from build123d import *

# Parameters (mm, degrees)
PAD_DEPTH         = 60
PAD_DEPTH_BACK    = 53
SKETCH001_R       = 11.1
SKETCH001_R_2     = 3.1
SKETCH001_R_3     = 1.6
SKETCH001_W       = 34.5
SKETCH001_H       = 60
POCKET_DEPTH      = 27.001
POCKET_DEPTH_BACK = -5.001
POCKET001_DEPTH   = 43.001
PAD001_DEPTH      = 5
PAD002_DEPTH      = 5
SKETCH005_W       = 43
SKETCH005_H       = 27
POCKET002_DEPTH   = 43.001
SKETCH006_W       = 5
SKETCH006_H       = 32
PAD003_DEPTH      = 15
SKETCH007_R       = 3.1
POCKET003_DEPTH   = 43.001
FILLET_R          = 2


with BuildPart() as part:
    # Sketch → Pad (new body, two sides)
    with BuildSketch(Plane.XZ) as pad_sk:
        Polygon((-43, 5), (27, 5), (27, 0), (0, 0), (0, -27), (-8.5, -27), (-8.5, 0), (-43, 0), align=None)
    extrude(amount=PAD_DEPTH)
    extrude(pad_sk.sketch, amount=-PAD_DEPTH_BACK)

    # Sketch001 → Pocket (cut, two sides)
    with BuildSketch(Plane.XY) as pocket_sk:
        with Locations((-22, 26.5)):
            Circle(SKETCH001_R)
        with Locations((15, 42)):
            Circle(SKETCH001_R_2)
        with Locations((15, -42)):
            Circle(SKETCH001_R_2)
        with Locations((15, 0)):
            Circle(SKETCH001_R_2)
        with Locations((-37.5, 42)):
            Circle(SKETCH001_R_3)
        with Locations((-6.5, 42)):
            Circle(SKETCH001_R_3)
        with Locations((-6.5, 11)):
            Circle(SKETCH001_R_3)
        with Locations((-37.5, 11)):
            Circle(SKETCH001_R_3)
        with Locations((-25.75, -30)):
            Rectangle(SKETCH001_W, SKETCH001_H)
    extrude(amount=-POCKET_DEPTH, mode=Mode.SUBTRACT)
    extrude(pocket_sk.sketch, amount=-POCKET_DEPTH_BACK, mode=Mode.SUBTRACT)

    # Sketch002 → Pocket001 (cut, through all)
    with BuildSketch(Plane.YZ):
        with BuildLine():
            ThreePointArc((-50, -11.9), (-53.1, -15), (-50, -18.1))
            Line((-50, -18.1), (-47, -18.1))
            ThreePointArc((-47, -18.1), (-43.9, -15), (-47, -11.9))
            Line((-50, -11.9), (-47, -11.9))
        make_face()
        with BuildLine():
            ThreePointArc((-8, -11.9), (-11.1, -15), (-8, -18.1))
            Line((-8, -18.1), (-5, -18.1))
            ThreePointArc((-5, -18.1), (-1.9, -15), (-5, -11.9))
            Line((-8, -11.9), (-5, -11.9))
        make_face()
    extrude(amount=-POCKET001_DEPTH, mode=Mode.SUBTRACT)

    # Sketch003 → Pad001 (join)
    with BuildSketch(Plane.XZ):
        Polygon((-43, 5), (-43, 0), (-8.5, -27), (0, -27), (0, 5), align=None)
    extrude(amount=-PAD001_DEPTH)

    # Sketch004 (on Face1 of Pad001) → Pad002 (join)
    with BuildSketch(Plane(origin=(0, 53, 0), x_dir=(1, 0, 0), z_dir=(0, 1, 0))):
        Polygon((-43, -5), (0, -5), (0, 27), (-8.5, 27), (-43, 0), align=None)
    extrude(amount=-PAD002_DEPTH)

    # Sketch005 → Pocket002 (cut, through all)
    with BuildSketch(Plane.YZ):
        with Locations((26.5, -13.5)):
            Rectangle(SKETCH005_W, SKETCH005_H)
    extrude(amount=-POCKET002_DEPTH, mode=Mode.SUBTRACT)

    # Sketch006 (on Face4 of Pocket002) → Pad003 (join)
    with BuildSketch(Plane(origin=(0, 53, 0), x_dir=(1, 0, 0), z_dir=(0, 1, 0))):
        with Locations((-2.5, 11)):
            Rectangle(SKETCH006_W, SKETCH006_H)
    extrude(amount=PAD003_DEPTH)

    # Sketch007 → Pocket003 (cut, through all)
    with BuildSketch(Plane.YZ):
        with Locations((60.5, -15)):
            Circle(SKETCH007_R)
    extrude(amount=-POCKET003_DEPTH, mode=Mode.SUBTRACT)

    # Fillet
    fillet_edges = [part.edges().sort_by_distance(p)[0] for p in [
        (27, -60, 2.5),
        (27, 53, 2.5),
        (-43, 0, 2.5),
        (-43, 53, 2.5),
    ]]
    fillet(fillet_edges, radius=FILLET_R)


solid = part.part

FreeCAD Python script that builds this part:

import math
import FreeCAD as App
import Part
import Sketcher
Q = App.Units.Quantity


def edges_at(feature, points):
    """Names of the edges that pass closest to the given points."""
    edges = feature.Shape.Edges
    near = lambda p: min(range(len(edges)), key=lambda i: edges[i].distToShape(Part.Vertex(*p))[0])
    return sorted({f"Edge{near(p) + 1}" for p in points})

doc = App.newDocument("Part")
params = doc.addObject("Spreadsheet::Sheet", "Params")
for row, (alias, value) in enumerate([
    ("sketch1_width", "70 mm"),
    ("sketch1_width2", "27 mm"),
    ("sketch1_height", "5 mm"),
    ("sketch1_width3", "34.5 mm"),
    ("pad1_length", "60 mm"),
    ("pad1_length2", "53 mm"),
    ("sketch2_diameter", "22.2 mm"),
    ("sketch2_diameter2", "6.2 mm"),
    ("sketch2_diameter3", "3.2 mm"),
    ("sketch2_height", "60 mm"),
    ("sketch2_width", "34.5 mm"),
    ("sketch3_radius", "3.1 mm"),
    ("sketch3_width", "3 mm"),
    ("sketch4_width", "43 mm"),
    ("sketch4_height", "5 mm"),
    ("sketch4_height2", "32 mm"),
    ("sketch4_width2", "8.5 mm"),
    ("pad2_length", "5 mm"),
    ("sketch5_width", "43 mm"),
    ("sketch5_height", "32 mm"),
    ("sketch5_height2", "5 mm"),
    ("sketch5_width2", "8.5 mm"),
    ("pad3_length", "5 mm"),
    ("sketch6_width", "43 mm"),
    ("sketch6_height", "27 mm"),
    ("sketch7_width", "5 mm"),
    ("sketch7_height", "32 mm"),
    ("pad4_length", "15 mm"),
    ("sketch8_diameter", "6.2 mm"),
    ("fillet_radius", "2 mm"),
], start=1):
    params.set(f"A{row}", alias)
    params.set(f"B{row}", "=" + value)
    params.setAlias(f"B{row}", alias)

body = doc.addObject("PartDesign::Body", "Body")

# Sketch on XZ plane
sketch1 = body.newObject("Sketcher::SketchObject", "Sketch")
sketch1.AttachmentSupport = (doc.getObject("XZ_Plane"), [""])
sketch1.MapMode = "FlatFace"
sketch1.addGeometry(Part.LineSegment(App.Vector(27, 5, 0), App.Vector(-43, 5, 0)), False)
sketch1.addGeometry(Part.LineSegment(App.Vector(-43, 5, 0), App.Vector(-43, 0, 0)), False)
sketch1.addGeometry(Part.LineSegment(App.Vector(-43, 0, 0), App.Vector(-8, 0, 0)), False)
sketch1.addGeometry(Part.LineSegment(App.Vector(-8, 0, 0), App.Vector(-8, -27, 0)), False)
sketch1.addGeometry(Part.LineSegment(App.Vector(-8, -27, 0), App.Vector(0, -27, 0)), False)
sketch1.addGeometry(Part.LineSegment(App.Vector(0, -27, 0), App.Vector(0, 0, 0)), False)
sketch1.addGeometry(Part.LineSegment(App.Vector(0, 0, 0), App.Vector(27, 0, 0)), False)
sketch1.addGeometry(Part.LineSegment(App.Vector(27, 0, 0), App.Vector(27, 5, 0)), False)
sketch1.addConstraint(Sketcher.Constraint("Coincident", 0, 2, 1, 1))
sketch1.addConstraint(Sketcher.Constraint("Coincident", 1, 2, 2, 1))
sketch1.addConstraint(Sketcher.Constraint("Coincident", 2, 2, 3, 1))
sketch1.addConstraint(Sketcher.Constraint("Coincident", 3, 2, 4, 1))
sketch1.addConstraint(Sketcher.Constraint("Coincident", 4, 2, 5, 1))
sketch1.addConstraint(Sketcher.Constraint("Coincident", 5, 2, 6, 1))
sketch1.addConstraint(Sketcher.Constraint("Coincident", 6, 2, 7, 1))
sketch1.addConstraint(Sketcher.Constraint("Coincident", 7, 2, 0, 1))
sketch1.addConstraint(Sketcher.Constraint("Horizontal", 0))
sketch1.addConstraint(Sketcher.Constraint("Vertical", 1))
sketch1.addConstraint(Sketcher.Constraint("Horizontal", 2))
sketch1.addConstraint(Sketcher.Constraint("Vertical", 3))
sketch1.addConstraint(Sketcher.Constraint("Horizontal", 4))
sketch1.addConstraint(Sketcher.Constraint("Vertical", 5))
sketch1.addConstraint(Sketcher.Constraint("Horizontal", 6))
sketch1.addConstraint(Sketcher.Constraint("Vertical", 7))
sketch1.addConstraint(Sketcher.Constraint("Coincident", 5, 2, -1, 1))
sketch1.addConstraint(Sketcher.Constraint("PointOnObject", 1, 2, -1))
sketch1.addConstraint(Sketcher.Constraint("Equal", 6, 3))
sketch1.addConstraint(Sketcher.Constraint("DistanceX", 0, 2, 0, 1, Q("70 mm")))
sketch1.addConstraint(Sketcher.Constraint("DistanceX", 6, 1, 6, 2, Q("27 mm")))
sketch1.addConstraint(Sketcher.Constraint("DistanceY", 1, 2, 1, 1, Q("5 mm")))
sketch1.addConstraint(Sketcher.Constraint("DistanceX", 2, 1, 2, 2, Q("34.5 mm")))
sketch1.setExpression("Constraints[19]", "Params.sketch1_width")
sketch1.setExpression("Constraints[20]", "Params.sketch1_width2")
sketch1.setExpression("Constraints[21]", "Params.sketch1_height")
sketch1.setExpression("Constraints[22]", "Params.sketch1_width3")
pad1 = body.newObject("PartDesign::Pad", "Pad")
pad1.Profile = sketch1
pad1.Type = "TwoLengths"
pad1.setExpression("Length", "Params.pad1_length")
pad1.setExpression("Length2", "Params.pad1_length2")

# Sketch on XY plane
sketch2 = body.newObject("Sketcher::SketchObject", "Sketch001")
sketch2.AttachmentSupport = (doc.getObject("XY_Plane"), [""])
sketch2.MapMode = "FlatFace"
sketch2.addGeometry(Part.Circle(App.Vector(-22, 26.5, 0), App.Vector(0, 0, 1), 11.1), False)
sketch2.addGeometry(Part.Circle(App.Vector(15, 42, 0), App.Vector(0, 0, 1), 3.1), False)
sketch2.addGeometry(Part.Circle(App.Vector(15, -42, 0), App.Vector(0, 0, 1), 3.1), False)
sketch2.addGeometry(Part.Circle(App.Vector(15, 0, 0), App.Vector(0, 0, 1), 3.1), False)
sketch2.addGeometry(Part.Circle(App.Vector(-37.5, 42, 0), App.Vector(0, 0, 1), 1.6), False)
sketch2.addGeometry(Part.Circle(App.Vector(-6.5, 42, 0), App.Vector(0, 0, 1), 1.6), False)
sketch2.addGeometry(Part.Circle(App.Vector(-6.5, 11, 0), App.Vector(0, 0, 1), 1.6), False)
sketch2.addGeometry(Part.Circle(App.Vector(-37.5, 11, 0), App.Vector(0, 0, 1), 1.6), False)
sketch2.addGeometry(Part.LineSegment(App.Vector(-43, 0, 0), App.Vector(-43, -60, 0)), False)
sketch2.addGeometry(Part.LineSegment(App.Vector(-43, -60, 0), App.Vector(-8.5, -60, 0)), False)
sketch2.addGeometry(Part.LineSegment(App.Vector(-8.5, -60, 0), App.Vector(-8.5, 0, 0)), False)
sketch2.addGeometry(Part.LineSegment(App.Vector(-8.5, 0, 0), App.Vector(-43, 0, 0)), False)
sketch2.addConstraint(Sketcher.Constraint("Coincident", 8, 2, 9, 1))
sketch2.addConstraint(Sketcher.Constraint("Coincident", 9, 2, 10, 1))
sketch2.addConstraint(Sketcher.Constraint("Coincident", 10, 2, 11, 1))
sketch2.addConstraint(Sketcher.Constraint("Coincident", 11, 2, 8, 1))
sketch2.addConstraint(Sketcher.Constraint("Vertical", 8))
sketch2.addConstraint(Sketcher.Constraint("Horizontal", 9))
sketch2.addConstraint(Sketcher.Constraint("Vertical", 10))
sketch2.addConstraint(Sketcher.Constraint("Horizontal", 11))
sketch2.addConstraint(Sketcher.Constraint("Equal", 1, 2))
sketch2.addConstraint(Sketcher.Constraint("Equal", 2, 3))
sketch2.addConstraint(Sketcher.Constraint("Equal", 4, 5))
sketch2.addConstraint(Sketcher.Constraint("Equal", 5, 6))
sketch2.addConstraint(Sketcher.Constraint("Equal", 6, 7))
sketch2.addConstraint(Sketcher.Constraint("Symmetric", 1, 3, 2, 3, -1))
sketch2.addConstraint(Sketcher.Constraint("PointOnObject", 3, 3, -1))
sketch2.addConstraint(Sketcher.Constraint("PointOnObject", 10, 2, -1))
sketch2.addConstraint(Sketcher.Constraint("Horizontal", 1, 3, 4, 3))
sketch2.addConstraint(Sketcher.Constraint("Horizontal", 4, 3, 5, 3))
sketch2.addConstraint(Sketcher.Constraint("Horizontal", 6, 3, 7, 3))
sketch2.addConstraint(Sketcher.Constraint("Vertical", 2, 3, 3, 3))
sketch2.addConstraint(Sketcher.Constraint("Vertical", 5, 3, 6, 3))
sketch2.addConstraint(Sketcher.Constraint("Vertical", 4, 3, 7, 3))
sketch2.addConstraint(Sketcher.Constraint("Diameter", 0, Q("22.2 mm")))
sketch2.addConstraint(Sketcher.Constraint("Diameter", 1, Q("6.2 mm")))
sketch2.addConstraint(Sketcher.Constraint("Diameter", 4, Q("3.2 mm")))
sketch2.addConstraint(Sketcher.Constraint("DistanceY", 8, 2, 8, 1, Q("60 mm")))
sketch2.addConstraint(Sketcher.Constraint("DistanceX", 9, 1, 9, 2, Q("34.5 mm")))
sketch2.addConstraint(Sketcher.Constraint("DistanceX", 0, 3, -1, 1, Q("22 mm")))
sketch2.addConstraint(Sketcher.Constraint("DistanceX", -1, 1, 1, 3, Q("15 mm")))
sketch2.addConstraint(Sketcher.Constraint("DistanceY", -1, 1, 1, 3, Q("42 mm")))
sketch2.addConstraint(Sketcher.Constraint("DistanceY", -1, 1, 6, 3, Q("11 mm")))
sketch2.addConstraint(Sketcher.Constraint("DistanceX", 8, 2, -1, 1, Q("43 mm")))
sketch2.addConstraint(Sketcher.Constraint("DistanceX", 4, 3, 5, 3, Q("31 mm")))
sketch2.addConstraint(Sketcher.Constraint("DistanceX", 9, 2, 6, 3, Q("2 mm")))
sketch2.addConstraint(Sketcher.Constraint("DistanceY", -1, 1, 0, 3, Q("26.5 mm")))
sketch2.setExpression("Constraints[22]", "Params.sketch2_diameter")
sketch2.setExpression("Constraints[23]", "Params.sketch2_diameter2")
sketch2.setExpression("Constraints[24]", "Params.sketch2_diameter3")
sketch2.setExpression("Constraints[25]", "Params.sketch2_height")
sketch2.setExpression("Constraints[26]", "Params.sketch2_width")
pocket1 = body.newObject("PartDesign::Pocket", "Pocket")
pocket1.Profile = sketch2
pocket1.Type = "ThroughAll"
pocket1.Midplane = True

# Sketch on YZ plane
sketch3 = body.newObject("Sketcher::SketchObject", "Sketch002")
sketch3.AttachmentSupport = (doc.getObject("YZ_Plane"), [""])
sketch3.MapMode = "FlatFace"
sketch3.addGeometry(Part.ArcOfCircle(Part.Circle(App.Vector(-50, -15, 0), App.Vector(0, 0, 1), 3.1), math.radians(90), math.radians(270)), False)
sketch3.addGeometry(Part.LineSegment(App.Vector(-50, -18.1, 0), App.Vector(-47, -18.1, 0)), False)
sketch3.addGeometry(Part.ArcOfCircle(Part.Circle(App.Vector(-47, -15, 0), App.Vector(0, 0, 1), 3.1), math.radians(-90), math.radians(90)), False)
sketch3.addGeometry(Part.LineSegment(App.Vector(-47, -11.9, 0), App.Vector(-50, -11.9, 0)), False)
sketch3.addGeometry(Part.ArcOfCircle(Part.Circle(App.Vector(-8, -15, 0), App.Vector(0, 0, 1), 3.1), math.radians(90), math.radians(270)), False)
sketch3.addGeometry(Part.LineSegment(App.Vector(-8, -18.1, 0), App.Vector(-5, -18.1, 0)), False)
sketch3.addGeometry(Part.ArcOfCircle(Part.Circle(App.Vector(-5, -15, 0), App.Vector(0, 0, 1), 3.1), math.radians(-90), math.radians(90)), False)
sketch3.addGeometry(Part.LineSegment(App.Vector(-5, -11.9, 0), App.Vector(-8, -11.9, 0)), False)
sketch3.addConstraint(Sketcher.Constraint("Tangent", 0, 2, 1, 1))
sketch3.addConstraint(Sketcher.Constraint("Tangent", 1, 2, 2, 1))
sketch3.addConstraint(Sketcher.Constraint("Tangent", 2, 2, 3, 1))
sketch3.addConstraint(Sketcher.Constraint("Tangent", 3, 2, 0, 1))
sketch3.addConstraint(Sketcher.Constraint("Tangent", 4, 2, 5, 1))
sketch3.addConstraint(Sketcher.Constraint("Tangent", 5, 2, 6, 1))
sketch3.addConstraint(Sketcher.Constraint("Tangent", 6, 2, 7, 1))
sketch3.addConstraint(Sketcher.Constraint("Tangent", 7, 2, 4, 1))
sketch3.addConstraint(Sketcher.Constraint("Horizontal", 1))
sketch3.addConstraint(Sketcher.Constraint("Horizontal", 3))
sketch3.addConstraint(Sketcher.Constraint("Horizontal", 5))
sketch3.addConstraint(Sketcher.Constraint("Horizontal", 7))
sketch3.addConstraint(Sketcher.Constraint("Equal", 2, 4))
sketch3.addConstraint(Sketcher.Constraint("Horizontal", 2, 3, 4, 3))
sketch3.addConstraint(Sketcher.Constraint("Equal", 3, 5))
sketch3.addConstraint(Sketcher.Constraint("Radius", 0, Q("3.1 mm")))
sketch3.addConstraint(Sketcher.Constraint("DistanceX", 1, 1, 1, 2, Q("3 mm")))
sketch3.addConstraint(Sketcher.Constraint("DistanceX", 0, 3, -1, 1, Q("50 mm")))
sketch3.addConstraint(Sketcher.Constraint("DistanceY", 0, 3, -1, 1, Q("15 mm")))
sketch3.addConstraint(Sketcher.Constraint("DistanceX", 4, 3, -1, 1, Q("8 mm")))
sketch3.setExpression("Constraints[15]", "Params.sketch3_radius")
sketch3.setExpression("Constraints[16]", "Params.sketch3_width")
pocket2 = body.newObject("PartDesign::Pocket", "Pocket001")
pocket2.Profile = sketch3
pocket2.Type = "ThroughAll"

# Sketch on XZ plane
sketch4 = body.newObject("Sketcher::SketchObject", "Sketch003")
sketch4.AttachmentSupport = (doc.getObject("XZ_Plane"), [""])
sketch4.MapMode = "FlatFace"
sketch4.addGeometry(Part.LineSegment(App.Vector(-43, 5, 0), App.Vector(-43, 0, 0)), False)
sketch4.addGeometry(Part.LineSegment(App.Vector(-43, 0, 0), App.Vector(-8, -27, 0)), False)
sketch4.addGeometry(Part.LineSegment(App.Vector(-8, -27, 0), App.Vector(0, -27, 0)), False)
sketch4.addGeometry(Part.LineSegment(App.Vector(0, -27, 0), App.Vector(0, 5, 0)), False)
sketch4.addGeometry(Part.LineSegment(App.Vector(0, 5, 0), App.Vector(-43, 5, 0)), False)
sketch4.addConstraint(Sketcher.Constraint("Coincident", 0, 2, 1, 1))
sketch4.addConstraint(Sketcher.Constraint("Coincident", 1, 2, 2, 1))
sketch4.addConstraint(Sketcher.Constraint("Coincident", 2, 2, 3, 1))
sketch4.addConstraint(Sketcher.Constraint("Coincident", 3, 2, 4, 1))
sketch4.addConstraint(Sketcher.Constraint("Coincident", 4, 2, 0, 1))
sketch4.addConstraint(Sketcher.Constraint("Vertical", 0))
sketch4.addConstraint(Sketcher.Constraint("Horizontal", 2))
sketch4.addConstraint(Sketcher.Constraint("Vertical", 3))
sketch4.addConstraint(Sketcher.Constraint("Horizontal", 4))
sketch4.addConstraint(Sketcher.Constraint("PointOnObject", 0, 2, -1))
sketch4.addConstraint(Sketcher.Constraint("PointOnObject", 2, 2, -2))
sketch4.addConstraint(Sketcher.Constraint("DistanceX", 4, 2, 4, 1, Q("43 mm")))
sketch4.addConstraint(Sketcher.Constraint("DistanceY", 0, 2, 0, 1, Q("5 mm")))
sketch4.addConstraint(Sketcher.Constraint("DistanceY", 3, 1, 3, 2, Q("32 mm")))
sketch4.addConstraint(Sketcher.Constraint("DistanceX", 2, 1, 2, 2, Q("8.5 mm")))
sketch4.setExpression("Constraints[11]", "Params.sketch4_width")
sketch4.setExpression("Constraints[12]", "Params.sketch4_height")
sketch4.setExpression("Constraints[13]", "Params.sketch4_height2")
sketch4.setExpression("Constraints[14]", "Params.sketch4_width2")
pad2 = body.newObject("PartDesign::Pad", "Pad001")
pad2.Profile = sketch4
pad2.setExpression("Length", "Params.pad2_length")
pad2.Reversed = True

# Sketch on XZ plane
sketch5 = body.newObject("Sketcher::SketchObject", "Sketch004")
sketch5.AttachmentSupport = (doc.getObject("XZ_Plane"), [""])
sketch5.MapMode = "FlatFace"
sketch5.AttachmentOffset = App.Placement(App.Vector(0, 0, -53), App.Rotation())
sketch5.addGeometry(Part.LineSegment(App.Vector(-43, 5, 0), App.Vector(0, 5, 0)), False)
sketch5.addGeometry(Part.LineSegment(App.Vector(0, 5, 0), App.Vector(0, -27, 0)), False)
sketch5.addGeometry(Part.LineSegment(App.Vector(0, -27, 0), App.Vector(-8, -27, 0)), False)
sketch5.addGeometry(Part.LineSegment(App.Vector(-8, -27, 0), App.Vector(-43, 0, 0)), False)
sketch5.addGeometry(Part.LineSegment(App.Vector(-43, 0, 0), App.Vector(-43, 5, 0)), False)
sketch5.addConstraint(Sketcher.Constraint("Coincident", 0, 2, 1, 1))
sketch5.addConstraint(Sketcher.Constraint("Coincident", 1, 2, 2, 1))
sketch5.addConstraint(Sketcher.Constraint("Coincident", 2, 2, 3, 1))
sketch5.addConstraint(Sketcher.Constraint("Coincident", 3, 2, 4, 1))
sketch5.addConstraint(Sketcher.Constraint("Coincident", 4, 2, 0, 1))
sketch5.addConstraint(Sketcher.Constraint("Horizontal", 0))
sketch5.addConstraint(Sketcher.Constraint("Vertical", 1))
sketch5.addConstraint(Sketcher.Constraint("Horizontal", 2))
sketch5.addConstraint(Sketcher.Constraint("Vertical", 4))
sketch5.addConstraint(Sketcher.Constraint("PointOnObject", 0, 2, -2))
sketch5.addConstraint(Sketcher.Constraint("PointOnObject", 3, 2, -1))
sketch5.addConstraint(Sketcher.Constraint("DistanceX", 0, 1, 0, 2, Q("43 mm")))
sketch5.addConstraint(Sketcher.Constraint("DistanceY", 1, 2, 1, 1, Q("32 mm")))
sketch5.addConstraint(Sketcher.Constraint("DistanceY", 4, 1, 4, 2, Q("5 mm")))
sketch5.addConstraint(Sketcher.Constraint("DistanceX", 2, 2, 2, 1, Q("8.5 mm")))
sketch5.setExpression("Constraints[11]", "Params.sketch5_width")
sketch5.setExpression("Constraints[12]", "Params.sketch5_height")
sketch5.setExpression("Constraints[13]", "Params.sketch5_height2")
sketch5.setExpression("Constraints[14]", "Params.sketch5_width2")
pad3 = body.newObject("PartDesign::Pad", "Pad002")
pad3.Profile = sketch5
pad3.setExpression("Length", "Params.pad3_length")

# Sketch on YZ plane
sketch6 = body.newObject("Sketcher::SketchObject", "Sketch005")
sketch6.AttachmentSupport = (doc.getObject("YZ_Plane"), [""])
sketch6.MapMode = "FlatFace"
sketch6.addGeometry(Part.LineSegment(App.Vector(5, 0, 0), App.Vector(5, -27, 0)), False)
sketch6.addGeometry(Part.LineSegment(App.Vector(5, -27, 0), App.Vector(48, -27, 0)), False)
sketch6.addGeometry(Part.LineSegment(App.Vector(48, -27, 0), App.Vector(48, 0, 0)), False)
sketch6.addGeometry(Part.LineSegment(App.Vector(48, 0, 0), App.Vector(5, 0, 0)), False)
sketch6.addConstraint(Sketcher.Constraint("Coincident", 0, 2, 1, 1))
sketch6.addConstraint(Sketcher.Constraint("Coincident", 1, 2, 2, 1))
sketch6.addConstraint(Sketcher.Constraint("Coincident", 2, 2, 3, 1))
sketch6.addConstraint(Sketcher.Constraint("Coincident", 3, 2, 0, 1))
sketch6.addConstraint(Sketcher.Constraint("Vertical", 0))
sketch6.addConstraint(Sketcher.Constraint("Horizontal", 1))
sketch6.addConstraint(Sketcher.Constraint("Vertical", 2))
sketch6.addConstraint(Sketcher.Constraint("Horizontal", 3))
sketch6.addConstraint(Sketcher.Constraint("PointOnObject", 2, 2, -1))
sketch6.addConstraint(Sketcher.Constraint("DistanceX", 1, 1, 1, 2, Q("43 mm")))
sketch6.addConstraint(Sketcher.Constraint("DistanceY", 0, 2, 0, 1, Q("27 mm")))
sketch6.addConstraint(Sketcher.Constraint("DistanceX", -1, 1, 0, 2, Q("5 mm")))
sketch6.setExpression("Constraints[9]", "Params.sketch6_width")
sketch6.setExpression("Constraints[10]", "Params.sketch6_height")
pocket3 = body.newObject("PartDesign::Pocket", "Pocket002")
pocket3.Profile = sketch6
pocket3.Type = "ThroughAll"

# Sketch on XZ plane
sketch7 = body.newObject("Sketcher::SketchObject", "Sketch006")
sketch7.AttachmentSupport = (doc.getObject("XZ_Plane"), [""])
sketch7.MapMode = "FlatFace"
sketch7.AttachmentOffset = App.Placement(App.Vector(0, 0, -53), App.Rotation())
sketch7.addGeometry(Part.LineSegment(App.Vector(-5, -27, 0), App.Vector(-5, 5, 0)), False)
sketch7.addGeometry(Part.LineSegment(App.Vector(-5, 5, 0), App.Vector(0, 5, 0)), False)
sketch7.addGeometry(Part.LineSegment(App.Vector(0, 5, 0), App.Vector(0, -27, 0)), False)
sketch7.addGeometry(Part.LineSegment(App.Vector(0, -27, 0), App.Vector(-5, -27, 0)), False)
sketch7.addConstraint(Sketcher.Constraint("Coincident", 0, 2, 1, 1))
sketch7.addConstraint(Sketcher.Constraint("Coincident", 1, 2, 2, 1))
sketch7.addConstraint(Sketcher.Constraint("Coincident", 2, 2, 3, 1))
sketch7.addConstraint(Sketcher.Constraint("Coincident", 3, 2, 0, 1))
sketch7.addConstraint(Sketcher.Constraint("Vertical", 0))
sketch7.addConstraint(Sketcher.Constraint("Horizontal", 1))
sketch7.addConstraint(Sketcher.Constraint("Vertical", 2))
sketch7.addConstraint(Sketcher.Constraint("Horizontal", 3))
sketch7.addConstraint(Sketcher.Constraint("PointOnObject", 1, 2, -2))
sketch7.addConstraint(Sketcher.Constraint("DistanceX", 1, 1, 1, 2, Q("5 mm")))
sketch7.addConstraint(Sketcher.Constraint("DistanceY", 0, 1, 0, 2, Q("32 mm")))
sketch7.addConstraint(Sketcher.Constraint("DistanceY", -1, 1, 0, 2, Q("5 mm")))
sketch7.setExpression("Constraints[9]", "Params.sketch7_width")
sketch7.setExpression("Constraints[10]", "Params.sketch7_height")
pad4 = body.newObject("PartDesign::Pad", "Pad003")
pad4.Profile = sketch7
pad4.setExpression("Length", "Params.pad4_length")
pad4.Reversed = True

# Sketch on YZ plane
sketch8 = body.newObject("Sketcher::SketchObject", "Sketch007")
sketch8.AttachmentSupport = (doc.getObject("YZ_Plane"), [""])
sketch8.MapMode = "FlatFace"
sketch8.addGeometry(Part.Circle(App.Vector(60.5, -15, 0), App.Vector(0, 0, 1), 3.1), False)
sketch8.addConstraint(Sketcher.Constraint("Diameter", 0, Q("6.2 mm")))
sketch8.addConstraint(Sketcher.Constraint("DistanceY", 0, 3, -1, 1, Q("15 mm")))
sketch8.addConstraint(Sketcher.Constraint("DistanceX", -1, 1, 0, 3, Q("60.5 mm")))
sketch8.setExpression("Constraints[0]", "Params.sketch8_diameter")
pocket4 = body.newObject("PartDesign::Pocket", "Pocket003")
pocket4.Profile = sketch8
pocket4.Type = "ThroughAll"
doc.recompute()

fillet = body.newObject("PartDesign::Fillet", "Fillet")
fillet.Base = (pocket4, edges_at(pocket4, [
    (27, -60, 2.5),
    (27, 53, 2.5),
    (-43, 0, 2.5),
    (-43, 53, 2.5),
]))
fillet.setExpression("Radius", "Params.fillet_radius")

doc.recompute()
